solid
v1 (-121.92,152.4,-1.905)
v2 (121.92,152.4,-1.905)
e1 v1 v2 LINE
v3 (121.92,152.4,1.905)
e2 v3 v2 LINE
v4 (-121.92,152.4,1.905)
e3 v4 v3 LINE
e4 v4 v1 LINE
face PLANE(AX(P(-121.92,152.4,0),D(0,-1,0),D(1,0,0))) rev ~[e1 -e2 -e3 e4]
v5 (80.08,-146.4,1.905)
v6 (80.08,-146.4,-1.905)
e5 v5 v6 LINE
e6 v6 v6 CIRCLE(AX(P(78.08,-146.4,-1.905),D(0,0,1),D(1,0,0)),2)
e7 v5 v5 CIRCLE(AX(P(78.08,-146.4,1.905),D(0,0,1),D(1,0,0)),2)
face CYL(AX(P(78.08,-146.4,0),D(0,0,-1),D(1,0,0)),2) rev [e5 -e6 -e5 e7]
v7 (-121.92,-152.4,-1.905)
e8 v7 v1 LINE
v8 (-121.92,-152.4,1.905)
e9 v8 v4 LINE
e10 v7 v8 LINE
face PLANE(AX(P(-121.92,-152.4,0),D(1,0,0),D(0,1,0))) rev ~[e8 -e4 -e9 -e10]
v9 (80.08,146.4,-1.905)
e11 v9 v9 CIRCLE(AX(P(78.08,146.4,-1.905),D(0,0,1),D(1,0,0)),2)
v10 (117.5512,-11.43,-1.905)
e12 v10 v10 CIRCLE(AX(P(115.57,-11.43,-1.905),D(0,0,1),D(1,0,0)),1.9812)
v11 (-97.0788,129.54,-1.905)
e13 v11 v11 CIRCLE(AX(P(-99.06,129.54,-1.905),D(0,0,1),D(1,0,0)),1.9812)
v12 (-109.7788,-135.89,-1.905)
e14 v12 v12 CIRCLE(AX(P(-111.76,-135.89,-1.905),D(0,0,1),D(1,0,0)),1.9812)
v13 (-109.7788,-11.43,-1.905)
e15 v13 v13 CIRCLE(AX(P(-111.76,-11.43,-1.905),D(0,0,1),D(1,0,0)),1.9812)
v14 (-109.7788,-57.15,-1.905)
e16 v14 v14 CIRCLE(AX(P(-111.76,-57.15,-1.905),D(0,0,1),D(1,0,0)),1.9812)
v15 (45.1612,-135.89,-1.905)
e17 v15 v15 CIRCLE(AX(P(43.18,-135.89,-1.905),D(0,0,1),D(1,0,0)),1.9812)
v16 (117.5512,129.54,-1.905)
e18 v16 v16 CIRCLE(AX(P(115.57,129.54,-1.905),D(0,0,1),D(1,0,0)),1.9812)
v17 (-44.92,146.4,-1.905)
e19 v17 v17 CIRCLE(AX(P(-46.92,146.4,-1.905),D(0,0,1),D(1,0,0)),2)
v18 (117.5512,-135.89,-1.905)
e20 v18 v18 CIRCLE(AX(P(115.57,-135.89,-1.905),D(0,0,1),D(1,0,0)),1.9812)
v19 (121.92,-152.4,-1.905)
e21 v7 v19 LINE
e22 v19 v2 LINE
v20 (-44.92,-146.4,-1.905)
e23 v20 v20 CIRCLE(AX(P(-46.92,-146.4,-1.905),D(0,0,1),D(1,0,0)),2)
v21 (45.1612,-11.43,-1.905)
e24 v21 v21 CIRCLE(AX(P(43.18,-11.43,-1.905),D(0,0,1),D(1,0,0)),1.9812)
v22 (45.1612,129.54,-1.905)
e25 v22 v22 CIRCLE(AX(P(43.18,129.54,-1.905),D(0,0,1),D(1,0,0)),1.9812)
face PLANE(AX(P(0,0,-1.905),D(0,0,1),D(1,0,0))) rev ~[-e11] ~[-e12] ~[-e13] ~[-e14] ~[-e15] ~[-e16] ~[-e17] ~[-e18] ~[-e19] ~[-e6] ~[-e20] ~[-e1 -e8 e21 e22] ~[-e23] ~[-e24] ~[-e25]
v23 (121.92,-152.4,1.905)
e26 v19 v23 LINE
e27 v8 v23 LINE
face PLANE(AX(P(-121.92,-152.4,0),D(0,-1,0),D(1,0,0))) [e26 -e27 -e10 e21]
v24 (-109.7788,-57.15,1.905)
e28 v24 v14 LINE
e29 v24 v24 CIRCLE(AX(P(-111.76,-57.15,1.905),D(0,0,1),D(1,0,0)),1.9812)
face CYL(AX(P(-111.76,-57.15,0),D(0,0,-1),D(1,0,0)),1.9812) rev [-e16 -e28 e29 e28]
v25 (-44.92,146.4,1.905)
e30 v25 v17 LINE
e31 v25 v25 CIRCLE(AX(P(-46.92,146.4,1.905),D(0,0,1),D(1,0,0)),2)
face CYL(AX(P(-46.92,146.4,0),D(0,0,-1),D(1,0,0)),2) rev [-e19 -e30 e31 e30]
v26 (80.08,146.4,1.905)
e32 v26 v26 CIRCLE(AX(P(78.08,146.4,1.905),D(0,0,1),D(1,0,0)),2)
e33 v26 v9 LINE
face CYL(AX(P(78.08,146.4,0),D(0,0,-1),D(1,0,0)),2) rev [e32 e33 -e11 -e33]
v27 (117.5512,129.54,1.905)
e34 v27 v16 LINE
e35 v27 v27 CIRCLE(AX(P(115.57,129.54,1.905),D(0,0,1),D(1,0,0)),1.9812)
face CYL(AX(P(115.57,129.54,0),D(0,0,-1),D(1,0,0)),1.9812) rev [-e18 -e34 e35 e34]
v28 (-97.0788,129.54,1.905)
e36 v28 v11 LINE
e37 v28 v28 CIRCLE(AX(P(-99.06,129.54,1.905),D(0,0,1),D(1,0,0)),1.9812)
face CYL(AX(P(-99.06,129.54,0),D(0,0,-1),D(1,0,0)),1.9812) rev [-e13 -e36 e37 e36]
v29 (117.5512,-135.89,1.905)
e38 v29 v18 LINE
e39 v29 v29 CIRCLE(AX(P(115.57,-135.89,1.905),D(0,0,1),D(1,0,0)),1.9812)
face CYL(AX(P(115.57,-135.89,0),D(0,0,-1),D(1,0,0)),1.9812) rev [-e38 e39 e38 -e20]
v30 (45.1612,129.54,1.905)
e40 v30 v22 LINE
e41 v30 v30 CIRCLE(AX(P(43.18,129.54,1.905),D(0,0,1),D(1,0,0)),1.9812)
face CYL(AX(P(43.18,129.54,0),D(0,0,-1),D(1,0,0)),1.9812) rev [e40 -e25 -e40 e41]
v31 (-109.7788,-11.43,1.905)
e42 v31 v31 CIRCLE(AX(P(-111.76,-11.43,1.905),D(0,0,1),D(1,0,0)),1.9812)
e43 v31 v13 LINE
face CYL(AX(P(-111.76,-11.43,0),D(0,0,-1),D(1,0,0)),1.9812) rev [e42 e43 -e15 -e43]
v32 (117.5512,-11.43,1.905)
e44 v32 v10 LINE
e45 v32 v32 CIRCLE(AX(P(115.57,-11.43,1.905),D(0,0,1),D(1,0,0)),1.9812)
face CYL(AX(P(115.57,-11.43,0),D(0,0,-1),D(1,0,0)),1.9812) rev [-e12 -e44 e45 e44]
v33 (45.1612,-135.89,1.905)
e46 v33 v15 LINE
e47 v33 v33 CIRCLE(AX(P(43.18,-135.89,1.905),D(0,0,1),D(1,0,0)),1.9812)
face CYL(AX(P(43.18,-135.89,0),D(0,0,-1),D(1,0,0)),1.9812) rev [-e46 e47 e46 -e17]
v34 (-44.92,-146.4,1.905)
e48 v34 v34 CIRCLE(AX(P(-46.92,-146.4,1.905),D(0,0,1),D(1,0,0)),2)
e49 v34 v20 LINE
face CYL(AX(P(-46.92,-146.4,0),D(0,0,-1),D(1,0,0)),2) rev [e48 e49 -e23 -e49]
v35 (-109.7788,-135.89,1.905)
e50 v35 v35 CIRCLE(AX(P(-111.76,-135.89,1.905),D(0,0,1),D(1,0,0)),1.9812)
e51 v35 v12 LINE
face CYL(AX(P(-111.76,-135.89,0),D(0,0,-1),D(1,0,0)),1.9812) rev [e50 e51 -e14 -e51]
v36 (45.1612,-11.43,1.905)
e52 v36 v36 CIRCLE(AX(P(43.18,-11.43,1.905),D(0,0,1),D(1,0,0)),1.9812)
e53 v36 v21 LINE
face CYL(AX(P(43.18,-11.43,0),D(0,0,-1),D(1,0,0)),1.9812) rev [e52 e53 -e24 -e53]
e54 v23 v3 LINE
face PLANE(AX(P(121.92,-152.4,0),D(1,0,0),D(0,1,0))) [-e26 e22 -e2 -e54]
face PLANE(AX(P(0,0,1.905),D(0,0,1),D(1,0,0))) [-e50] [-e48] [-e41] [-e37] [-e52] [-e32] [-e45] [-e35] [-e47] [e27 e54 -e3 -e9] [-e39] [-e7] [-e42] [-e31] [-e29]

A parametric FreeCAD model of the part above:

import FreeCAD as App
import Part
import Sketcher
from FreeCAD import Vector
Q = App.Units.Quantity

doc = App.newDocument("Part")
params = doc.addObject("Spreadsheet::Sheet", "Params")
for row, (alias, value) in enumerate([
    ("sketch1_height", "12 in"),
    ("sketch1_diameter", "0.156 in"),
    ("sketch1_width", "9.6 in"),
    ("pad1_length", "0.15 in"),
], start=1):
    params.set(f"A{row}", alias)
    params.set(f"B{row}", "=" + value)
    params.setAlias(f"B{row}", alias)

body = doc.addObject("PartDesign::Body", "Body")

# Sketch on XY plane
sketch1 = body.newObject("Sketcher::SketchObject", "Sketch")
sketch1.AttachmentSupport = (doc.getObject("XY_Plane"), [""])
sketch1.MapMode = "FlatFace"
sketch1.addGeometry([
    Part.LineSegment(Vector(-121.9, 152.4, 0), Vector(-121.9, -152.4, 0)),  # 0
    Part.LineSegment(Vector(-121.9, -152.4, 0), Vector(121.9, -152.4, 0)),  # 1
    Part.LineSegment(Vector(121.9, -152.4, 0), Vector(121.9, 152.4, 0)),  # 2
    Part.LineSegment(Vector(121.9, 152.4, 0), Vector(-121.9, 152.4, 0)),  # 3
    Part.Circle(Vector(-111.8, -135.9, 0), Vector(0, 0, 1), 2),  # 4
    Part.Circle(Vector(-46.9, -146.4, 0), Vector(0, 0, 1), 2),  # 5
    Part.Circle(Vector(-111.8, -57.1, 0), Vector(0, 0, 1), 2),  # 6
    Part.Circle(Vector(-111.8, -11.4, 0), Vector(0, 0, 1), 2),  # 7
    Part.Circle(Vector(43.2, -135.9, 0), Vector(0, 0, 1), 2),  # 8
    Part.Circle(Vector(78.1, -146.4, 0), Vector(0, 0, 1), 2),  # 9
    Part.Circle(Vector(115.6, -135.9, 0), Vector(0, 0, 1), 2),  # 10
    Part.Circle(Vector(43.2, -11.4, 0), Vector(0, 0, 1), 2),  # 11
    Part.Circle(Vector(115.6, -11.4, 0), Vector(0, 0, 1), 2),  # 12
    Part.Circle(Vector(-99.1, 129.5, 0), Vector(0, 0, 1), 2),  # 13
    Part.Circle(Vector(-46.9, 146.4, 0), Vector(0, 0, 1), 2),  # 14
    Part.Circle(Vector(43.2, 129.5, 0), Vector(0, 0, 1), 2),  # 15
    Part.Circle(Vector(78.1, 146.4, 0), Vector(0, 0, 1), 2),  # 16
    Part.Circle(Vector(115.6, 129.5, 0), Vector(0, 0, 1), 2),  # 17
], False)
sketch1.addConstraint([
    Sketcher.Constraint("Coincident", 0, 2, 1, 1),
    Sketcher.Constraint("Coincident", 1, 2, 2, 1),
    Sketcher.Constraint("Coincident", 2, 2, 3, 1),
    Sketcher.Constraint("Coincident", 3, 2, 0, 1),
    Sketcher.Constraint("Vertical", 0),
    Sketcher.Constraint("Horizontal", 1),
    Sketcher.Constraint("Vertical", 2),
    Sketcher.Constraint("Horizontal", 3),
    Sketcher.Constraint("Equal", 4, 6),
    Sketcher.Constraint("Equal", 6, 7),
    Sketcher.Constraint("Equal", 7, 8),
    Sketcher.Constraint("Equal", 5, 9),
    Sketcher.Constraint("Equal", 8, 10),
    Sketcher.Constraint("Equal", 10, 11),
    Sketcher.Constraint("Equal", 11, 12),
    Sketcher.Constraint("Equal", 12, 13),
    Sketcher.Constraint("Equal", 9, 14),
    Sketcher.Constraint("Equal", 13, 15),
    Sketcher.Constraint("Equal", 14, 16),
    Sketcher.Constraint("Equal", 15, 17),
    Sketcher.Constraint("Symmetric", 0, 2, 2, 2, -1, 1),
    Sketcher.Constraint("Symmetric", 5, 3, 14, 3, -1),
    Sketcher.Constraint("Symmetric", 9, 3, 16, 3, -1),
    Sketcher.Constraint("Horizontal", 4, 3, 8, 3),
    Sketcher.Constraint("Horizontal", 5, 3, 9, 3),
    Sketcher.Constraint("Horizontal", 8, 3, 10, 3),
    Sketcher.Constraint("Horizontal", 7, 3, 11, 3),
    Sketcher.Constraint("Horizontal", 11, 3, 12, 3),
    Sketcher.Constraint("Horizontal", 13, 3, 15, 3),
    Sketcher.Constraint("Horizontal", 15, 3, 17, 3),
    Sketcher.Constraint("Vertical", 4, 3, 6, 3),
    Sketcher.Constraint("Vertical", 6, 3, 7, 3),
    Sketcher.Constraint("Vertical", 8, 3, 11, 3),
    Sketcher.Constraint("Vertical", 10, 3, 12, 3),
    Sketcher.Constraint("Vertical", 11, 3, 15, 3),
    Sketcher.Constraint("Vertical", 12, 3, 17, 3),
    Sketcher.Constraint("DistanceY", 0, 2, 0, 1, Q("12 in")),
    Sketcher.Constraint("Diameter", 4, Q("0.156 in")),
    Sketcher.Constraint("DistanceX", 1, 1, 1, 2, Q("9.6 in")),
    Sketcher.Constraint("DistanceX", 4, 3, -1, 1, Q("4.4 in")),
    Sketcher.Constraint("DistanceX", -1, 1, 8, 3, Q("1.7 in")),
    Sketcher.Constraint("DistanceX", 13, 3, -1, 1, Q("3.9 in")),
    Sketcher.Constraint("DistanceY", -1, 1, 13, 3, Q("5.1 in")),
    Sketcher.Constraint("DistanceY", 4, 3, 6, 3, Q("3.1 in")),
    Sketcher.Constraint("DistanceY", 6, 3, 7, 3, Q("1.8 in")),
    Sketcher.Constraint("Diameter", 5, 4.0),
    Sketcher.Constraint("DistanceY", 4, 3, -1, 1, Q("5.35 in")),
    Sketcher.Constraint("DistanceX", -1, 1, 10, 3, Q("4.55 in")),
    Sketcher.Constraint("DistanceX", 5, 3, -1, 1, 46.92),
    Sketcher.Constraint("DistanceY", 5, 3, -1, 1, 146.4),
    Sketcher.Constraint("DistanceX", -1, 1, 9, 3, 78.08),
])
sketch1.setExpression("Constraints[36]", "Params.sketch1_height")
sketch1.setExpression("Constraints[37]", "Params.sketch1_diameter")
sketch1.setExpression("Constraints[38]", "Params.sketch1_width")
pad1 = body.newObject("PartDesign::Pad", "Pad")
pad1.Profile = sketch1
pad1.setExpression("Length", "Params.pad1_length")
pad1.Midplane = True

doc.recompute()
